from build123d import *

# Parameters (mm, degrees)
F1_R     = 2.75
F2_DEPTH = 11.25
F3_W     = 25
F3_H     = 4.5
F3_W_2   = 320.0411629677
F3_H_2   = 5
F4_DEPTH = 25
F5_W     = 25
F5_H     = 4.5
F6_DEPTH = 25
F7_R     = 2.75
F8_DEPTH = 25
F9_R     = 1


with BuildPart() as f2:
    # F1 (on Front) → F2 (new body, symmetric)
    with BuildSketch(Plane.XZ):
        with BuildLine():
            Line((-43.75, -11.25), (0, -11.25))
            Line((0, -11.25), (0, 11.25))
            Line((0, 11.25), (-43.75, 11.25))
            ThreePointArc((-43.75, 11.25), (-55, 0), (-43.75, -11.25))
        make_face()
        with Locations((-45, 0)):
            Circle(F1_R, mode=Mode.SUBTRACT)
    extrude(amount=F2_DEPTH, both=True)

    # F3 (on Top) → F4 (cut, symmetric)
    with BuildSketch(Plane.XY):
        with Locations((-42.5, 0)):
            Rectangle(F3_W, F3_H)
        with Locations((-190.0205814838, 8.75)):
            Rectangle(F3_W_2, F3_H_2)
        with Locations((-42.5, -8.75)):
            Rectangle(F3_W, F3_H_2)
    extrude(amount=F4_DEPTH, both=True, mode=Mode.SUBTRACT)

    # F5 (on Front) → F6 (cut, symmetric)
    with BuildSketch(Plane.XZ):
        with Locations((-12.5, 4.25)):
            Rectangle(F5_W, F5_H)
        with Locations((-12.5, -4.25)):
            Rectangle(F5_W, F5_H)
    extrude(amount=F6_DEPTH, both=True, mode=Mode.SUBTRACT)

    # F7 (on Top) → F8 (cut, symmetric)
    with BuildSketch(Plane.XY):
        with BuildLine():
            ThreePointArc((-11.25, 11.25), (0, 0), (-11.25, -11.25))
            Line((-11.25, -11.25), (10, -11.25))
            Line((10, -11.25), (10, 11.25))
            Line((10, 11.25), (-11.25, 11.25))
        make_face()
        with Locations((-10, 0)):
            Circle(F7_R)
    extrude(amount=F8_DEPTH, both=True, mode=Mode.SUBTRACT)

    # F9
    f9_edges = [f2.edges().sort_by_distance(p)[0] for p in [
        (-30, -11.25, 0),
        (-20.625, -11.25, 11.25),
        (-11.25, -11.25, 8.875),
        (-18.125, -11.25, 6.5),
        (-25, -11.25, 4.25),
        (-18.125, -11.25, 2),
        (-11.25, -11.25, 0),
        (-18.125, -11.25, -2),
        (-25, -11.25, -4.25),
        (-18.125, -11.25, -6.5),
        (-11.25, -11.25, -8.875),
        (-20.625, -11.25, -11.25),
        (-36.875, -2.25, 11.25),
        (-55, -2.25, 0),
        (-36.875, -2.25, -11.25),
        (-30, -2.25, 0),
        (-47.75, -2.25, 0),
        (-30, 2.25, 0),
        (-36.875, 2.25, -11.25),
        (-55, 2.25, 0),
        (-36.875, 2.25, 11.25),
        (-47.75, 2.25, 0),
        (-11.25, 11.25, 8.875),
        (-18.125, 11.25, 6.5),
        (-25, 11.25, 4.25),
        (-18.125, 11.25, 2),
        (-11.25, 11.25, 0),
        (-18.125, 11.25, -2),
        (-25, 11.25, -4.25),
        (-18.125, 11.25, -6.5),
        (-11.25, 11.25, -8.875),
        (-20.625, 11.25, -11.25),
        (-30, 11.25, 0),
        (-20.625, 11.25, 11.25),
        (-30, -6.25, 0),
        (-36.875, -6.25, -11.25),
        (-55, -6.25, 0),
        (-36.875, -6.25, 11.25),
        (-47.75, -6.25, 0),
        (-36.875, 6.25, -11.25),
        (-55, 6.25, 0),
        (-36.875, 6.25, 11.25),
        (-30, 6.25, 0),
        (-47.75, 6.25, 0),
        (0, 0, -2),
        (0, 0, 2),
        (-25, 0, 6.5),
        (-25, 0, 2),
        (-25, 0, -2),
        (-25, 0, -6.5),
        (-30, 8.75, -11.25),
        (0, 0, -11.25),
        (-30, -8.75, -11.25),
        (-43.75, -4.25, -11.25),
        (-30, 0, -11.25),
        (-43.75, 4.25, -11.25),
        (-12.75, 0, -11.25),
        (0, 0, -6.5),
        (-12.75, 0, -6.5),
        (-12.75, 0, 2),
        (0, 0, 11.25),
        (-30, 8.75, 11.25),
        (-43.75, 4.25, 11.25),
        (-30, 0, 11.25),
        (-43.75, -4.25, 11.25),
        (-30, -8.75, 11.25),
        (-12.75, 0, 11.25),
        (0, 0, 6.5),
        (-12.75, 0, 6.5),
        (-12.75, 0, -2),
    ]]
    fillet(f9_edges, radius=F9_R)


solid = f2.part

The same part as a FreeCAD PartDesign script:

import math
import FreeCAD as App
import Part
import Sketcher
from FreeCAD import Vector


def add_polygon(sketch, points):
    """Adds a closed chain of lines whose ends are joined by coincident constraints."""
    first, n = sketch.GeometryCount, len(points)
    for a, b in zip(points, points[1:] + points[:1]):
        sketch.addGeometry(Part.LineSegment(App.Vector(*a, 0), App.Vector(*b, 0)), False)
    for i in range(n):
        sketch.addConstraint(Sketcher.Constraint("Coincident", first + i, 2, first + (i + 1) % n, 1))

doc = App.newDocument("Part")
body = doc.addObject("PartDesign::Body", "Body")

# Sketch on XZ plane
sketch1 = body.newObject("Sketcher::SketchObject", "Sketch")
sketch1.AttachmentSupport = (doc.getObject("XZ_Plane"), [""])
sketch1.MapMode = "FlatFace"
sketch1.addGeometry([
    Part.LineSegment(Vector(-43.8, -11.2, 0), Vector(0, -11.2, 0)),  # 0
    Part.LineSegment(Vector(0, -11.2, 0), Vector(0, 11.2, 0)),  # 1
    Part.LineSegment(Vector(0, 11.2, 0), Vector(-43.8, 11.2, 0)),  # 2
    Part.ArcOfCircle(Part.Circle(Vector(-43.8, 0, 0), Vector(0, 0, 1), 11.2), math.radians(90), math.radians(270)),  # 3
    Part.Circle(Vector(-45, 0, 0), Vector(0, 0, 1), 2.8),  # 4
], False)
sketch1.addConstraint([
    Sketcher.Constraint("Coincident", 0, 2, 1, 1),
    Sketcher.Constraint("Coincident", 1, 2, 2, 1),
    Sketcher.Constraint("Tangent", 2, 2, 3, 1),
    Sketcher.Constraint("Tangent", 3, 2, 0, 1),
    Sketcher.Constraint("Horizontal", 0),
    Sketcher.Constraint("Vertical", 1),
    Sketcher.Constraint("Horizontal", 2),
    Sketcher.Constraint("Symmetric", 0, 2, 1, 2, -1, 1),
    Sketcher.Constraint("PointOnObject", 4, 3, -1),
    Sketcher.Constraint("Diameter", 4, 5.5),
    Sketcher.Constraint("Radius", 3, 11.25),
    Sketcher.Constraint("DistanceX", 4, 3, -1, 1, 45.0),
    Sketcher.Constraint("DistanceX", 0, 1, 0, 2, 43.75),
])
pad1 = body.newObject("PartDesign::Pad", "Pad")
pad1.Profile = sketch1
pad1.Length = 22.5
pad1.Midplane = True

# Sketch on XY plane
sketch2 = body.newObject("Sketcher::SketchObject", "Sketch001")
sketch2.AttachmentSupport = (doc.getObject("XY_Plane"), [""])
sketch2.MapMode = "FlatFace"
add_polygon(sketch2, [(-55, 2.2), (-55, -2.2), (-30, -2.2), (-30, 2.2)])  # lines 0-3
add_polygon(sketch2, [(-350, 11.2), (-350, 6.2), (-30, 6.2), (-30, 11.2)])  # lines 4-7
add_polygon(sketch2, [(-55, -6.2), (-55, -11.2), (-30, -11.2), (-30, -6.2)])  # lines 8-11
sketch2.addConstraint([
    Sketcher.Constraint("Vertical", 0),
    Sketcher.Constraint("Horizontal", 1),
    Sketcher.Constraint("Vertical", 2),
    Sketcher.Constraint("Horizontal", 3),
    Sketcher.Constraint("Vertical", 4),
    Sketcher.Constraint("Horizontal", 5),
    Sketcher.Constraint("Vertical", 6),
    Sketcher.Constraint("Horizontal", 7),
    Sketcher.Constraint("Vertical", 8),
    Sketcher.Constraint("Horizontal", 9),
    Sketcher.Constraint("Vertical", 10),
    Sketcher.Constraint("Horizontal", 11),
    Sketcher.Constraint("Symmetric", 6, 2, 9, 2, -1),
    Sketcher.Constraint("Vertical", 2, 2, 5, 2),
    Sketcher.Constraint("Vertical", 3, 2, 8, 2),
    Sketcher.Constraint("Equal", 6, 8),
    Sketcher.Constraint("DistanceX", 1, 1, 1, 2, 25.0),
    Sketcher.Constraint("DistanceY", 4, 2, 4, 1, 5.0),
    Sketcher.Constraint("DistanceY", 0, 2, 0, 1, 4.5),
    Sketcher.Constraint("DistanceX", 0, 2, -1, 1, 55.0),
    Sketcher.Constraint("DistanceY", 3, 2, 4, 2, 4.0),
    Sketcher.Constraint("DistanceY", 8, 2, 0, 2, 9.0),
    Sketcher.Constraint("DistanceX", 5, 1, 5, 2, 320.041163),
])
pocket1 = body.newObject("PartDesign::Pocket", "Pocket")
pocket1.Profile = sketch2
pocket1.Length = 50
pocket1.Midplane = True

# Sketch on XZ plane
sketch3 = body.newObject("Sketcher::SketchObject", "Sketch002")
sketch3.AttachmentSupport = (doc.getObject("XZ_Plane"), [""])
sketch3.MapMode = "FlatFace"
add_polygon(sketch3, [(-25, 6.5), (-25, 2), (0, 2), (0, 6.5)])  # lines 0-3
add_polygon(sketch3, [(-25, -2), (-25, -6.5), (0, -6.5), (0, -2)])  # lines 4-7
sketch3.addConstraint([
    Sketcher.Constraint("Vertical", 0),
    Sketcher.Constraint("Horizontal", 1),
    Sketcher.Constraint("Vertical", 2),
    Sketcher.Constraint("Horizontal", 3),
    Sketcher.Constraint("Vertical", 4),
    Sketcher.Constraint("Horizontal", 5),
    Sketcher.Constraint("Vertical", 6),
    Sketcher.Constraint("Horizontal", 7),
    Sketcher.Constraint("Symmetric", 2, 2, 5, 2, -1, 1),
    Sketcher.Constraint("Symmetric", 1, 2, 6, 2, -1),
    Sketcher.Constraint("Vertical", 3, 2, 4, 2),
    Sketcher.Constraint("DistanceX", 1, 1, 1, 2, 25.0),
    Sketcher.Constraint("DistanceY", 0, 2, 0, 1, 4.5),
    Sketcher.Constraint("DistanceY", -1, 1, 0, 2, 2.0),
])
pocket2 = body.newObject("PartDesign::Pocket", "Pocket001")
pocket2.Profile = sketch3
pocket2.Length = 50
pocket2.Midplane = True

# Sketch on XY plane
sketch4 = body.newObject("Sketcher::SketchObject", "Sketch003")
sketch4.AttachmentSupport = (doc.getObject("XY_Plane"), [""])
sketch4.MapMode = "FlatFace"
sketch4.addGeometry([
    Part.ArcOfCircle(Part.Circle(Vector(-11.2, 0, 0), Vector(0, 0, 1), 11.2), math.radians(-90), math.radians(90)),  # 0
    Part.LineSegment(Vector(-11.2, -11.2, 0), Vector(10, -11.2, 0)),  # 1
    Part.LineSegment(Vector(10, -11.2, 0), Vector(10, 11.2, 0)),  # 2
    Part.LineSegment(Vector(10, 11.2, 0), Vector(-11.2, 11.2, 0)),  # 3
    Part.Circle(Vector(-10, 0, 0), Vector(0, 0, 1), 2.8),  # 4
], False)
sketch4.addConstraint([
    Sketcher.Constraint("Tangent", 0, 1, 1, 1),
    Sketcher.Constraint("Coincident", 1, 2, 2, 1),
    Sketcher.Constraint("Coincident", 2, 2, 3, 1),
    Sketcher.Constraint("Tangent", 3, 2, 0, 2),
    Sketcher.Constraint("Horizontal", 1),
    Sketcher.Constraint("Vertical", 2),
    Sketcher.Constraint("Horizontal", 3),
    Sketcher.Constraint("PointOnObject", 0, 3, -1),
    Sketcher.Constraint("PointOnObject", 4, 3, -1),
    Sketcher.Constraint("Diameter", 4, 5.5),
    Sketcher.Constraint("Radius", 0, 11.25),
    Sketcher.Constraint("DistanceX", 4, 3, -1, 1, 10.0),
    Sketcher.Constraint("DistanceX", -1, 1, 1, 2, 10.0),
    Sketcher.Constraint("DistanceX", 1, 1, 1, 2, 21.25),
])
pocket3 = body.newObject("PartDesign::Pocket", "Pocket002")
pocket3.Profile = sketch4
pocket3.Length = 50
pocket3.Midplane = True
doc.recompute()

fillet = body.newObject("PartDesign::Fillet", "Fillet")
fillet.Base = (pocket3, ["Edge1"])
fillet.UseAllEdges = True
fillet.Radius = 1

doc.recompute()
